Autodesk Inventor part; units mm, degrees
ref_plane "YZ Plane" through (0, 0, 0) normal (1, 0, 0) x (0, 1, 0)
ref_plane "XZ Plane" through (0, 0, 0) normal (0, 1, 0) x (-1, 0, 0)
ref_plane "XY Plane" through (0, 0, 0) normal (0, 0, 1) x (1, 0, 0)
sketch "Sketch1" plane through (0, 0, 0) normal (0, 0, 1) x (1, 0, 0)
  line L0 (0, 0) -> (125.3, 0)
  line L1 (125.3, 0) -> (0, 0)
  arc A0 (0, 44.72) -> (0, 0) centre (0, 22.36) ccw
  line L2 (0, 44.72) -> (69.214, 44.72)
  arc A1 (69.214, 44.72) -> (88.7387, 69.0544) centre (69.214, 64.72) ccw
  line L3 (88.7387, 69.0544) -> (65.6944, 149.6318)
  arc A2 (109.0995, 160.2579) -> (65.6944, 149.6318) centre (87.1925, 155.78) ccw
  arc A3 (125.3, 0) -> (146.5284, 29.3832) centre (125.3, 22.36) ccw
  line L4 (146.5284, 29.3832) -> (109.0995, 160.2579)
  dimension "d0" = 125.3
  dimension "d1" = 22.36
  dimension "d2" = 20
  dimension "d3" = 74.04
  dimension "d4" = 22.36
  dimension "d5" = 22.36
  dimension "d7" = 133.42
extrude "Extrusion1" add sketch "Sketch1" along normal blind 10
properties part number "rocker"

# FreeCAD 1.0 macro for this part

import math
import FreeCAD as App
import Part
import Sketcher
Q = App.Units.Quantity

doc = App.newDocument("Part")
body = doc.addObject("PartDesign::Body", "Body")

# Sketch on XY plane
sketch1 = body.newObject("Sketcher::SketchObject", "Sketch")
sketch1.AttachmentSupport = (doc.getObject("XY_Plane"), [""])
sketch1.MapMode = "FlatFace"
sketch1.addGeometry([
    Part.ArcOfCircle(Part.Circle(App.Vector(0, 22.36, 0), App.Vector(0, 0, 1), 22.36), math.radians(90), math.radians(270)),  # 0
    Part.LineSegment(App.Vector(0, 0, 0), App.Vector(125.3, 0, 0)),  # 1
    Part.ArcOfCircle(Part.Circle(App.Vector(125.3, 22.36, 0), App.Vector(0, 0, 1), 22.36), math.radians(-90), math.radians(18.306272)),  # 2
    Part.LineSegment(App.Vector(146.5284, 29.3832, 0), App.Vector(109.0995, 160.2579, 0)),  # 3
    Part.ArcOfCircle(Part.Circle(App.Vector(87.1925, 155.78, 0), App.Vector(0, 0, 1), 22.35997), math.radians(11.552405), math.radians(195.959897)),  # 4
    Part.LineSegment(App.Vector(65.6944, 149.6318, 0), App.Vector(88.7387, 69.0544, 0)),  # 5
    Part.ArcOfCircle(Part.Circle(App.Vector(69.214, 64.72, 0), App.Vector(0, 0, 1), 20), math.radians(-90), math.radians(12.516441)),  # 6
    Part.LineSegment(App.Vector(69.214, 44.72, 0), App.Vector(0, 44.72, 0)),  # 7
], False)
sketch1.addConstraint([
    Sketcher.Constraint("Tangent", 0, 2, 1, 1),
    Sketcher.Constraint("Tangent", 1, 2, 2, 1),
    Sketcher.Constraint("Coincident", 2, 2, 3, 1),
    Sketcher.Constraint("Coincident", 3, 2, 4, 1),
    Sketcher.Constraint("Tangent", 4, 2, 5, 1),
    Sketcher.Constraint("Coincident", 5, 2, 6, 2),
    Sketcher.Constraint("Tangent", 6, 1, 7, 1),
    Sketcher.Constraint("Tangent", 7, 2, 0, 1),
    Sketcher.Constraint("Horizontal", 1),
    Sketcher.Constraint("Horizontal", 7),
    Sketcher.Constraint("Coincident", 0, 2, -1, 1),
    Sketcher.Constraint("Equal", 0, 2),
    Sketcher.Constraint("Equal", 2, 4),
    Sketcher.Constraint("Parallel", 3, 5),
    Sketcher.Constraint("Radius", 6, 20.0),
    Sketcher.Constraint("Radius", 0, 22.36),
    Sketcher.Constraint("DistanceX", 1, 1, 1, 2, 125.3),
    Sketcher.Constraint("Angle", 5, Q("-74.04 deg")),
    Sketcher.Constraint("DistanceY", 2, 3, 4, 3, 133.42),
    Sketcher.Constraint("DistanceX", 7, 2, 7, 1, 69.214),
    Sketcher.Constraint("DistanceY", -1, 1, 3, 2, 160.258),
    Sketcher.Constraint("DistanceX", 4, 3, 2, 2, 59.336),
])
pad1 = body.newObject("PartDesign::Pad", "Pad")
pad1.Profile = sketch1
pad1.Length = 10

doc.recompute()
